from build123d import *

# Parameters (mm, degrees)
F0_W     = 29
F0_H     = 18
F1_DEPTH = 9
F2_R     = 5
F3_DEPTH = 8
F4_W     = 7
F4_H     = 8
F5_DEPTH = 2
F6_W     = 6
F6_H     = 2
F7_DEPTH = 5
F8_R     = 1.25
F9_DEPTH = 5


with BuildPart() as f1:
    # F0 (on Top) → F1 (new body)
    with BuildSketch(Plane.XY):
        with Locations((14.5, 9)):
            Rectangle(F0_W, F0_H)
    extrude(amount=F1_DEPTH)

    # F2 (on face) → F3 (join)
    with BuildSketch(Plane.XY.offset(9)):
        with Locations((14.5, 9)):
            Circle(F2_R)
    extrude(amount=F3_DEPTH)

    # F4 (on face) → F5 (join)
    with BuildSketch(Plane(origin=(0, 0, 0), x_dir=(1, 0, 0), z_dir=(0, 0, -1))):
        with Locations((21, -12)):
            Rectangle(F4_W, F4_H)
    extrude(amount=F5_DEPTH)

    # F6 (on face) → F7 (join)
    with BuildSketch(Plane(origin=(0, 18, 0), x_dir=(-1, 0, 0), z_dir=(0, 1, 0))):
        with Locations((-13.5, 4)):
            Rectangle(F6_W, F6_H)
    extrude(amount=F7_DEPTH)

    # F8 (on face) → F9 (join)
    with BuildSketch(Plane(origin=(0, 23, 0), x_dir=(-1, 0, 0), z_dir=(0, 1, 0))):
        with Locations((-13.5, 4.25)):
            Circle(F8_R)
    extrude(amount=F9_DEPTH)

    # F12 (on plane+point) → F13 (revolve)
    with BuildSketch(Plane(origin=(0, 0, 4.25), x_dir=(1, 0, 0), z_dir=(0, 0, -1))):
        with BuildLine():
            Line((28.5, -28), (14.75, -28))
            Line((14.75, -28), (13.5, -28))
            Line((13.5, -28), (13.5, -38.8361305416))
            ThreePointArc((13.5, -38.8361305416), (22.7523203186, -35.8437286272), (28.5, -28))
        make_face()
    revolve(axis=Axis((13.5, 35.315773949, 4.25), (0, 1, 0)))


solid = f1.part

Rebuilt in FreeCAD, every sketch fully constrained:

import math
import FreeCAD as App
import Part
import Sketcher
from FreeCAD import Vector
Q = App.Units.Quantity


def add_polygon(sketch, points):
    """Adds a closed chain of lines whose ends are joined by coincident constraints."""
    first, n = sketch.GeometryCount, len(points)
    for a, b in zip(points, points[1:] + points[:1]):
        sketch.addGeometry(Part.LineSegment(App.Vector(*a, 0), App.Vector(*b, 0)), False)
    for i in range(n):
        sketch.addConstraint(Sketcher.Constraint("Coincident", first + i, 2, first + (i + 1) % n, 1))

doc = App.newDocument("Part")
params = doc.addObject("Spreadsheet::Sheet", "Params")
for row, (alias, value) in enumerate([
    ("sketch1_width", "29 mm"),
    ("sketch1_height", "18 mm"),
    ("pad1_length", "9 mm"),
    ("sketch2_diameter", "10 mm"),
    ("pad2_length", "8 mm"),
    ("sketch3_width", "7 mm"),
    ("sketch3_height", "8 mm"),
    ("pad3_length", "2 mm"),
    ("sketch4_width", "6 mm"),
    ("sketch4_height", "2 mm"),
    ("pad4_length", "5 mm"),
    ("sketch5_diameter", "2.5 mm"),
    ("pad5_length", "5 mm"),
    ("sketch6_radius", "15.8 mm"),
    ("sketch6_width", "15 mm"),
    ("revolution_angle", "360 deg"),
], start=1):
    params.set(f"A{row}", alias)
    params.set(f"B{row}", "=" + value)
    params.setAlias(f"B{row}", alias)

body = doc.addObject("PartDesign::Body", "Body")

sketch1 = doc.addObject("Sketcher::SketchObject", "Sketch")
body.addObject(sketch1)
sketch1.AttachmentSupport = (doc.XY_Plane, [""])
sketch1.MapMode = "FlatFace"
add_polygon(sketch1, [(0, 18), (0, 0), (29, 0), (29, 18)])
sketch1.addConstraint([
    Sketcher.Constraint("Vertical", 0),
    Sketcher.Constraint("Horizontal", 1),
    Sketcher.Constraint("Vertical", 2),
    Sketcher.Constraint("Horizontal", 3),
    Sketcher.Constraint("Coincident", 0, 2, -1, 1),
    Sketcher.Constraint("DistanceX", 1, 1, 1, 2, Q("29 mm")),
    Sketcher.Constraint("DistanceY", 0, 2, 0, 1, Q("18 mm")),
])
sketch1.setExpression("Constraints[9]", "Params.sketch1_width")
sketch1.setExpression("Constraints[10]", "Params.sketch1_height")
pad1 = doc.addObject("PartDesign::Pad", "Pad")
body.addObject(pad1)
pad1.Profile = sketch1
pad1.setExpression("Length", "Params.pad1_length")

sketch2 = doc.addObject("Sketcher::SketchObject", "Sketch001")
body.addObject(sketch2)
sketch2.AttachmentSupport = (doc.XY_Plane, [""])
sketch2.MapMode = "FlatFace"
sketch2.AttachmentOffset = App.Placement(Vector(0, 0, 9), App.Rotation())
sketch2.addGeometry(Part.Circle(Vector(14, 9, 0), Vector(0, 0, 1), 5), False)
sketch2.addConstraint([
    Sketcher.Constraint("Diameter", 0, Q("10 mm")),
    Sketcher.Constraint("DistanceY", -1, 1, 0, 3, Q("9 mm")),
    Sketcher.Constraint("DistanceX", -1, 1, 0, 3, Q("14.5 mm")),
])
sketch2.setExpression("Constraints[0]", "Params.sketch2_diameter")
pad2 = doc.addObject("PartDesign::Pad", "Pad001")
body.addObject(pad2)
pad2.Profile = sketch2
pad2.setExpression("Length", "Params.pad2_length")

sketch3 = doc.addObject("Sketcher::SketchObject", "Sketch002")
body.addObject(sketch3)
sketch3.AttachmentSupport = (doc.XY_Plane, [""])
sketch3.MapMode = "FlatFace"
add_polygon(sketch3, [(18, 8), (18, 16), (24, 16), (24, 8)])
sketch3.addConstraint([
    Sketcher.Constraint("Vertical", 0),
    Sketcher.Constraint("Horizontal", 1),
    Sketcher.Constraint("Vertical", 2),
    Sketcher.Constraint("Horizontal", 3),
    Sketcher.Constraint("DistanceX", 1, 1, 1, 2, Q("7 mm")),
    Sketcher.Constraint("DistanceY", 0, 1, 0, 2, Q("8 mm")),
    Sketcher.Constraint("DistanceY", -1, 1, 0, 2, Q("16 mm")),
    Sketcher.Constraint("DistanceX", -1, 1, 0, 2, Q("17.5 mm")),
])
sketch3.setExpression("Constraints[8]", "Params.sketch3_width")
sketch3.setExpression("Constraints[9]", "Params.sketch3_height")
pad3 = doc.addObject("PartDesign::Pad", "Pad002")
body.addObject(pad3)
pad3.Profile = sketch3
pad3.setExpression("Length", "Params.pad3_length")
pad3.Reversed = True

sketch4 = doc.addObject("Sketcher::SketchObject", "Sketch003")
body.addObject(sketch4)
sketch4.AttachmentSupport = (doc.XZ_Plane, [""])
sketch4.MapMode = "FlatFace"
sketch4.AttachmentOffset = App.Placement(Vector(0, 0, -18), App.Rotation())
add_polygon(sketch4, [(16.5, 5), (16.5, 3), (10.5, 3), (10.5, 5)])
sketch4.addConstraint([
    Sketcher.Constraint("Vertical", 0),
    Sketcher.Constraint("Horizontal", 1),
    Sketcher.Constraint("Vertical", 2),
    Sketcher.Constraint("Horizontal", 3),
    Sketcher.Constraint("DistanceX", 1, 2, 1, 1, Q("6 mm")),
    Sketcher.Constraint("DistanceY", 0, 2, 0, 1, Q("2 mm")),
    Sketcher.Constraint("DistanceY", -1, 1, 0, 2, Q("3 mm")),
    Sketcher.Constraint("DistanceX", -1, 1, 0, 2, Q("16.5 mm")),
])
sketch4.setExpression("Constraints[8]", "Params.sketch4_width")
sketch4.setExpression("Constraints[9]", "Params.sketch4_height")
pad4 = doc.addObject("PartDesign::Pad", "Pad003")
body.addObject(pad4)
pad4.Profile = sketch4
pad4.setExpression("Length", "Params.pad4_length")
pad4.Reversed = True

sketch5 = doc.addObject("Sketcher::SketchObject", "Sketch004")
body.addObject(sketch5)
sketch5.AttachmentSupport = (doc.XZ_Plane, [""])
sketch5.MapMode = "FlatFace"
sketch5.AttachmentOffset = App.Placement(Vector(0, 0, -23), App.Rotation())
sketch5.addGeometry(Part.Circle(Vector(13.5, 4.2, 0), Vector(0, 0, 1), 1.2), False)
sketch5.addConstraint([
    Sketcher.Constraint("Diameter", 0, Q("2.5 mm")),
    Sketcher.Constraint("DistanceX", -1, 1, 0, 3, Q("13.5 mm")),
    Sketcher.Constraint("DistanceY", -1, 1, 0, 3, Q("4.25 mm")),
])
sketch5.setExpression("Constraints[0]", "Params.sketch5_diameter")
pad5 = doc.addObject("PartDesign::Pad", "Pad004")
body.addObject(pad5)
pad5.Profile = sketch5
pad5.setExpression("Length", "Params.pad5_length")
pad5.Reversed = True

sketch6 = doc.addObject("Sketcher::SketchObject", "Sketch005")
body.addObject(sketch6)
sketch6.AttachmentSupport = (doc.XY_Plane, [""])
sketch6.MapMode = "FlatFace"
sketch6.AttachmentOffset = App.Placement(Vector(0, 0, 4.25), App.Rotation())
sketch6.addGeometry([
    Part.LineSegment(Vector(28, 28, 0), Vector(14, 28, 0)),
    Part.LineSegment(Vector(14, 28, 0), Vector(14, 39, 0)),
    Part.ArcOfCircle(Part.Circle(Vector(14, 23, 0), Vector(0, 0, 1), 16), math.radians(18), math.radians(90)),
], False)
sketch6.addGeometry(Part.LineSegment(Vector(14, 23, 0), Vector(14, 39, 0)), True)
sketch6.addConstraint([
    Sketcher.Constraint("Coincident", 0, 2, 1, 1),
    Sketcher.Constraint("Coincident", 1, 2, 2, 2),
    Sketcher.Constraint("Coincident", 2, 1, 0, 1),
    Sketcher.Constraint("Horizontal", 0),
    Sketcher.Constraint("Vertical", 1),
    Sketcher.Constraint("Vertical", 3),
    Sketcher.Constraint("Coincident", 3, 1, 2, 3),
    Sketcher.Constraint("Coincident", 3, 2, 1, 2),
    Sketcher.Constraint("Radius", 2, Q("15.8 mm")),
    Sketcher.Constraint("DistanceX", 0, 2, 0, 1, Q("15 mm")),
    Sketcher.Constraint("DistanceY", -1, 1, 0, 2, Q("28 mm")),
    Sketcher.Constraint("DistanceX", -1, 1, 2, 3, Q("13.5 mm")),
])
sketch6.setExpression("Constraints[8]", "Params.sketch6_radius")
sketch6.setExpression("Constraints[9]", "Params.sketch6_width")
revolution = doc.addObject("PartDesign::Revolution", "Revolution")
body.addObject(revolution)
revolution.Profile = sketch6
revolution.ReferenceAxis = (sketch6, ["Axis0"])
revolution.setExpression("Angle", "Params.revolution_angle")

doc.recompute()
